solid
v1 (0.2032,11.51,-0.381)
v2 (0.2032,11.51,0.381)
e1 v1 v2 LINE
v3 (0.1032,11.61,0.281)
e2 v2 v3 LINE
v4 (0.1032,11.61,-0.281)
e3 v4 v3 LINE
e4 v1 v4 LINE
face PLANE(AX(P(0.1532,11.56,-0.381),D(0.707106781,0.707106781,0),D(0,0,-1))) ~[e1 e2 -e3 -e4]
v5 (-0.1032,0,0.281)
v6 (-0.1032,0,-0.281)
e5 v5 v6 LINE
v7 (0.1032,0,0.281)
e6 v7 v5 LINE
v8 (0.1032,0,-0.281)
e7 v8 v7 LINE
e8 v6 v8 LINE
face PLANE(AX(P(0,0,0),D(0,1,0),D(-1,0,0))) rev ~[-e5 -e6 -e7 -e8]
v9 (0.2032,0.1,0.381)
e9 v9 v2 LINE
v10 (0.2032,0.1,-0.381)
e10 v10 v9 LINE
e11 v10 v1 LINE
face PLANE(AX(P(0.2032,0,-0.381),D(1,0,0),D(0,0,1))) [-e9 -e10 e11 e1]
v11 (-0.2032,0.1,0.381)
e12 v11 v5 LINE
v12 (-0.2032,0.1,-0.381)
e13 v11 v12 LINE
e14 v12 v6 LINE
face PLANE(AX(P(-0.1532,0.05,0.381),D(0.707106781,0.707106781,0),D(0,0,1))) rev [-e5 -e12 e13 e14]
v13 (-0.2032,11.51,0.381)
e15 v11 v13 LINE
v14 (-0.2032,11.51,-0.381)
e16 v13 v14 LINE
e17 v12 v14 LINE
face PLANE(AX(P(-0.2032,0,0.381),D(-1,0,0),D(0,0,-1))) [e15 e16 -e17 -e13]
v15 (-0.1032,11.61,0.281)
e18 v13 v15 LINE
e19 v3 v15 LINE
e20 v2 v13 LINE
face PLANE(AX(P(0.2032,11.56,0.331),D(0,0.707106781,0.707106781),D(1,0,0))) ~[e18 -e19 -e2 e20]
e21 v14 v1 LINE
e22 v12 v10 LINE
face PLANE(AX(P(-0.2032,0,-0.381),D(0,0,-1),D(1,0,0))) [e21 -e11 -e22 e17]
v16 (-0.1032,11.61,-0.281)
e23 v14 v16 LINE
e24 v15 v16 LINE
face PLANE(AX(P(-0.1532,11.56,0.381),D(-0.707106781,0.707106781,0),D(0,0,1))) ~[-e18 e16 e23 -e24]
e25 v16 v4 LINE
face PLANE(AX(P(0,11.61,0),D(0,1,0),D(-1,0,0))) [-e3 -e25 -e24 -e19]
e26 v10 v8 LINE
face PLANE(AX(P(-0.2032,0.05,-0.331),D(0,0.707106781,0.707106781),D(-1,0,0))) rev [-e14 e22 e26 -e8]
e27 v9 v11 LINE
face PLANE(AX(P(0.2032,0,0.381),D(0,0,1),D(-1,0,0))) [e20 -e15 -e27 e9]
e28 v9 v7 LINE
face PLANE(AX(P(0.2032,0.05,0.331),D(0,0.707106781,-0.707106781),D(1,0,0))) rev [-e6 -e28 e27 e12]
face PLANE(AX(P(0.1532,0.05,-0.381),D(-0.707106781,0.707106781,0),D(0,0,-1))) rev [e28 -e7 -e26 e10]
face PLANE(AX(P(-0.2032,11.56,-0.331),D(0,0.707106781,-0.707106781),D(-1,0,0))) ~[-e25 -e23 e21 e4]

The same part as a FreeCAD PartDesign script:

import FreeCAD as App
import Part
import Sketcher

V = App.Vector
Q = App.Units.Quantity


def edges_at(feature, points):
    """Names of the edges that pass closest to the given points."""
    edges = feature.Shape.Edges
    near = lambda p: min(range(len(edges)), key=lambda i: edges[i].distToShape(Part.Vertex(*p))[0])
    return sorted({f"Edge{near(p) + 1}" for p in points})


def add_polygon(sketch, points):
    """Adds a closed chain of lines whose ends are joined by coincident constraints."""
    first, n = sketch.GeometryCount, len(points)
    for a, b in zip(points, points[1:] + points[:1]):
        sketch.addGeometry(Part.LineSegment(App.Vector(*a, 0), App.Vector(*b, 0)), False)
    for i in range(n):
        sketch.addConstraint(Sketcher.Constraint("Coincident", first + i, 2, first + (i + 1) % n, 1))

doc = App.newDocument("Part")
body = doc.addObject("PartDesign::Body", "Body")

sketch1 = doc.addObject("Sketcher::SketchObject", "Sketch")
body.addObject(sketch1)
sketch1.AttachmentSupport = (doc.XZ_Plane, [""])
sketch1.MapMode = "FlatFace"
add_polygon(sketch1, [(0.2, -0.38), (-0.2, -0.38), (-0.2, 0.38), (0.2, 0.38)])
sketch1.addConstraint(Sketcher.Constraint("Horizontal", 0))
sketch1.addConstraint(Sketcher.Constraint("Vertical", 1))
sketch1.addConstraint(Sketcher.Constraint("Horizontal", 2))
sketch1.addConstraint(Sketcher.Constraint("Vertical", 3))
sketch1.addConstraint(Sketcher.Constraint("Symmetric", 0, 2, 2, 2, -1, 1))
sketch1.addConstraint(Sketcher.Constraint("DistanceY", 1, 1, 1, 2, Q("0.03 in")))
sketch1.addConstraint(Sketcher.Constraint("DistanceX", 0, 2, 0, 1, Q("0.016 in")))
pad1 = doc.addObject("PartDesign::Pad", "Pad")
body.addObject(pad1)
pad1.Profile = sketch1
pad1.Length = 11.61
pad1.Reversed = True
doc.recompute()

chamfer = doc.addObject("PartDesign::Chamfer", "Chamfer")
body.addObject(chamfer)
chamfer.Base = (pad1, edges_at(pad1, [
    (0.203, 11.61, 0),
    (0, 11.61, -0.381),
    (0, 11.61, 0.381),
    (-0.203, 11.61, 0),
    (0.203, 0, 0),
    (0, 0, -0.381),
    (0, 0, 0.381),
    (-0.203, 0, 0),
]))
chamfer.Size = 0.1

doc.recompute()
